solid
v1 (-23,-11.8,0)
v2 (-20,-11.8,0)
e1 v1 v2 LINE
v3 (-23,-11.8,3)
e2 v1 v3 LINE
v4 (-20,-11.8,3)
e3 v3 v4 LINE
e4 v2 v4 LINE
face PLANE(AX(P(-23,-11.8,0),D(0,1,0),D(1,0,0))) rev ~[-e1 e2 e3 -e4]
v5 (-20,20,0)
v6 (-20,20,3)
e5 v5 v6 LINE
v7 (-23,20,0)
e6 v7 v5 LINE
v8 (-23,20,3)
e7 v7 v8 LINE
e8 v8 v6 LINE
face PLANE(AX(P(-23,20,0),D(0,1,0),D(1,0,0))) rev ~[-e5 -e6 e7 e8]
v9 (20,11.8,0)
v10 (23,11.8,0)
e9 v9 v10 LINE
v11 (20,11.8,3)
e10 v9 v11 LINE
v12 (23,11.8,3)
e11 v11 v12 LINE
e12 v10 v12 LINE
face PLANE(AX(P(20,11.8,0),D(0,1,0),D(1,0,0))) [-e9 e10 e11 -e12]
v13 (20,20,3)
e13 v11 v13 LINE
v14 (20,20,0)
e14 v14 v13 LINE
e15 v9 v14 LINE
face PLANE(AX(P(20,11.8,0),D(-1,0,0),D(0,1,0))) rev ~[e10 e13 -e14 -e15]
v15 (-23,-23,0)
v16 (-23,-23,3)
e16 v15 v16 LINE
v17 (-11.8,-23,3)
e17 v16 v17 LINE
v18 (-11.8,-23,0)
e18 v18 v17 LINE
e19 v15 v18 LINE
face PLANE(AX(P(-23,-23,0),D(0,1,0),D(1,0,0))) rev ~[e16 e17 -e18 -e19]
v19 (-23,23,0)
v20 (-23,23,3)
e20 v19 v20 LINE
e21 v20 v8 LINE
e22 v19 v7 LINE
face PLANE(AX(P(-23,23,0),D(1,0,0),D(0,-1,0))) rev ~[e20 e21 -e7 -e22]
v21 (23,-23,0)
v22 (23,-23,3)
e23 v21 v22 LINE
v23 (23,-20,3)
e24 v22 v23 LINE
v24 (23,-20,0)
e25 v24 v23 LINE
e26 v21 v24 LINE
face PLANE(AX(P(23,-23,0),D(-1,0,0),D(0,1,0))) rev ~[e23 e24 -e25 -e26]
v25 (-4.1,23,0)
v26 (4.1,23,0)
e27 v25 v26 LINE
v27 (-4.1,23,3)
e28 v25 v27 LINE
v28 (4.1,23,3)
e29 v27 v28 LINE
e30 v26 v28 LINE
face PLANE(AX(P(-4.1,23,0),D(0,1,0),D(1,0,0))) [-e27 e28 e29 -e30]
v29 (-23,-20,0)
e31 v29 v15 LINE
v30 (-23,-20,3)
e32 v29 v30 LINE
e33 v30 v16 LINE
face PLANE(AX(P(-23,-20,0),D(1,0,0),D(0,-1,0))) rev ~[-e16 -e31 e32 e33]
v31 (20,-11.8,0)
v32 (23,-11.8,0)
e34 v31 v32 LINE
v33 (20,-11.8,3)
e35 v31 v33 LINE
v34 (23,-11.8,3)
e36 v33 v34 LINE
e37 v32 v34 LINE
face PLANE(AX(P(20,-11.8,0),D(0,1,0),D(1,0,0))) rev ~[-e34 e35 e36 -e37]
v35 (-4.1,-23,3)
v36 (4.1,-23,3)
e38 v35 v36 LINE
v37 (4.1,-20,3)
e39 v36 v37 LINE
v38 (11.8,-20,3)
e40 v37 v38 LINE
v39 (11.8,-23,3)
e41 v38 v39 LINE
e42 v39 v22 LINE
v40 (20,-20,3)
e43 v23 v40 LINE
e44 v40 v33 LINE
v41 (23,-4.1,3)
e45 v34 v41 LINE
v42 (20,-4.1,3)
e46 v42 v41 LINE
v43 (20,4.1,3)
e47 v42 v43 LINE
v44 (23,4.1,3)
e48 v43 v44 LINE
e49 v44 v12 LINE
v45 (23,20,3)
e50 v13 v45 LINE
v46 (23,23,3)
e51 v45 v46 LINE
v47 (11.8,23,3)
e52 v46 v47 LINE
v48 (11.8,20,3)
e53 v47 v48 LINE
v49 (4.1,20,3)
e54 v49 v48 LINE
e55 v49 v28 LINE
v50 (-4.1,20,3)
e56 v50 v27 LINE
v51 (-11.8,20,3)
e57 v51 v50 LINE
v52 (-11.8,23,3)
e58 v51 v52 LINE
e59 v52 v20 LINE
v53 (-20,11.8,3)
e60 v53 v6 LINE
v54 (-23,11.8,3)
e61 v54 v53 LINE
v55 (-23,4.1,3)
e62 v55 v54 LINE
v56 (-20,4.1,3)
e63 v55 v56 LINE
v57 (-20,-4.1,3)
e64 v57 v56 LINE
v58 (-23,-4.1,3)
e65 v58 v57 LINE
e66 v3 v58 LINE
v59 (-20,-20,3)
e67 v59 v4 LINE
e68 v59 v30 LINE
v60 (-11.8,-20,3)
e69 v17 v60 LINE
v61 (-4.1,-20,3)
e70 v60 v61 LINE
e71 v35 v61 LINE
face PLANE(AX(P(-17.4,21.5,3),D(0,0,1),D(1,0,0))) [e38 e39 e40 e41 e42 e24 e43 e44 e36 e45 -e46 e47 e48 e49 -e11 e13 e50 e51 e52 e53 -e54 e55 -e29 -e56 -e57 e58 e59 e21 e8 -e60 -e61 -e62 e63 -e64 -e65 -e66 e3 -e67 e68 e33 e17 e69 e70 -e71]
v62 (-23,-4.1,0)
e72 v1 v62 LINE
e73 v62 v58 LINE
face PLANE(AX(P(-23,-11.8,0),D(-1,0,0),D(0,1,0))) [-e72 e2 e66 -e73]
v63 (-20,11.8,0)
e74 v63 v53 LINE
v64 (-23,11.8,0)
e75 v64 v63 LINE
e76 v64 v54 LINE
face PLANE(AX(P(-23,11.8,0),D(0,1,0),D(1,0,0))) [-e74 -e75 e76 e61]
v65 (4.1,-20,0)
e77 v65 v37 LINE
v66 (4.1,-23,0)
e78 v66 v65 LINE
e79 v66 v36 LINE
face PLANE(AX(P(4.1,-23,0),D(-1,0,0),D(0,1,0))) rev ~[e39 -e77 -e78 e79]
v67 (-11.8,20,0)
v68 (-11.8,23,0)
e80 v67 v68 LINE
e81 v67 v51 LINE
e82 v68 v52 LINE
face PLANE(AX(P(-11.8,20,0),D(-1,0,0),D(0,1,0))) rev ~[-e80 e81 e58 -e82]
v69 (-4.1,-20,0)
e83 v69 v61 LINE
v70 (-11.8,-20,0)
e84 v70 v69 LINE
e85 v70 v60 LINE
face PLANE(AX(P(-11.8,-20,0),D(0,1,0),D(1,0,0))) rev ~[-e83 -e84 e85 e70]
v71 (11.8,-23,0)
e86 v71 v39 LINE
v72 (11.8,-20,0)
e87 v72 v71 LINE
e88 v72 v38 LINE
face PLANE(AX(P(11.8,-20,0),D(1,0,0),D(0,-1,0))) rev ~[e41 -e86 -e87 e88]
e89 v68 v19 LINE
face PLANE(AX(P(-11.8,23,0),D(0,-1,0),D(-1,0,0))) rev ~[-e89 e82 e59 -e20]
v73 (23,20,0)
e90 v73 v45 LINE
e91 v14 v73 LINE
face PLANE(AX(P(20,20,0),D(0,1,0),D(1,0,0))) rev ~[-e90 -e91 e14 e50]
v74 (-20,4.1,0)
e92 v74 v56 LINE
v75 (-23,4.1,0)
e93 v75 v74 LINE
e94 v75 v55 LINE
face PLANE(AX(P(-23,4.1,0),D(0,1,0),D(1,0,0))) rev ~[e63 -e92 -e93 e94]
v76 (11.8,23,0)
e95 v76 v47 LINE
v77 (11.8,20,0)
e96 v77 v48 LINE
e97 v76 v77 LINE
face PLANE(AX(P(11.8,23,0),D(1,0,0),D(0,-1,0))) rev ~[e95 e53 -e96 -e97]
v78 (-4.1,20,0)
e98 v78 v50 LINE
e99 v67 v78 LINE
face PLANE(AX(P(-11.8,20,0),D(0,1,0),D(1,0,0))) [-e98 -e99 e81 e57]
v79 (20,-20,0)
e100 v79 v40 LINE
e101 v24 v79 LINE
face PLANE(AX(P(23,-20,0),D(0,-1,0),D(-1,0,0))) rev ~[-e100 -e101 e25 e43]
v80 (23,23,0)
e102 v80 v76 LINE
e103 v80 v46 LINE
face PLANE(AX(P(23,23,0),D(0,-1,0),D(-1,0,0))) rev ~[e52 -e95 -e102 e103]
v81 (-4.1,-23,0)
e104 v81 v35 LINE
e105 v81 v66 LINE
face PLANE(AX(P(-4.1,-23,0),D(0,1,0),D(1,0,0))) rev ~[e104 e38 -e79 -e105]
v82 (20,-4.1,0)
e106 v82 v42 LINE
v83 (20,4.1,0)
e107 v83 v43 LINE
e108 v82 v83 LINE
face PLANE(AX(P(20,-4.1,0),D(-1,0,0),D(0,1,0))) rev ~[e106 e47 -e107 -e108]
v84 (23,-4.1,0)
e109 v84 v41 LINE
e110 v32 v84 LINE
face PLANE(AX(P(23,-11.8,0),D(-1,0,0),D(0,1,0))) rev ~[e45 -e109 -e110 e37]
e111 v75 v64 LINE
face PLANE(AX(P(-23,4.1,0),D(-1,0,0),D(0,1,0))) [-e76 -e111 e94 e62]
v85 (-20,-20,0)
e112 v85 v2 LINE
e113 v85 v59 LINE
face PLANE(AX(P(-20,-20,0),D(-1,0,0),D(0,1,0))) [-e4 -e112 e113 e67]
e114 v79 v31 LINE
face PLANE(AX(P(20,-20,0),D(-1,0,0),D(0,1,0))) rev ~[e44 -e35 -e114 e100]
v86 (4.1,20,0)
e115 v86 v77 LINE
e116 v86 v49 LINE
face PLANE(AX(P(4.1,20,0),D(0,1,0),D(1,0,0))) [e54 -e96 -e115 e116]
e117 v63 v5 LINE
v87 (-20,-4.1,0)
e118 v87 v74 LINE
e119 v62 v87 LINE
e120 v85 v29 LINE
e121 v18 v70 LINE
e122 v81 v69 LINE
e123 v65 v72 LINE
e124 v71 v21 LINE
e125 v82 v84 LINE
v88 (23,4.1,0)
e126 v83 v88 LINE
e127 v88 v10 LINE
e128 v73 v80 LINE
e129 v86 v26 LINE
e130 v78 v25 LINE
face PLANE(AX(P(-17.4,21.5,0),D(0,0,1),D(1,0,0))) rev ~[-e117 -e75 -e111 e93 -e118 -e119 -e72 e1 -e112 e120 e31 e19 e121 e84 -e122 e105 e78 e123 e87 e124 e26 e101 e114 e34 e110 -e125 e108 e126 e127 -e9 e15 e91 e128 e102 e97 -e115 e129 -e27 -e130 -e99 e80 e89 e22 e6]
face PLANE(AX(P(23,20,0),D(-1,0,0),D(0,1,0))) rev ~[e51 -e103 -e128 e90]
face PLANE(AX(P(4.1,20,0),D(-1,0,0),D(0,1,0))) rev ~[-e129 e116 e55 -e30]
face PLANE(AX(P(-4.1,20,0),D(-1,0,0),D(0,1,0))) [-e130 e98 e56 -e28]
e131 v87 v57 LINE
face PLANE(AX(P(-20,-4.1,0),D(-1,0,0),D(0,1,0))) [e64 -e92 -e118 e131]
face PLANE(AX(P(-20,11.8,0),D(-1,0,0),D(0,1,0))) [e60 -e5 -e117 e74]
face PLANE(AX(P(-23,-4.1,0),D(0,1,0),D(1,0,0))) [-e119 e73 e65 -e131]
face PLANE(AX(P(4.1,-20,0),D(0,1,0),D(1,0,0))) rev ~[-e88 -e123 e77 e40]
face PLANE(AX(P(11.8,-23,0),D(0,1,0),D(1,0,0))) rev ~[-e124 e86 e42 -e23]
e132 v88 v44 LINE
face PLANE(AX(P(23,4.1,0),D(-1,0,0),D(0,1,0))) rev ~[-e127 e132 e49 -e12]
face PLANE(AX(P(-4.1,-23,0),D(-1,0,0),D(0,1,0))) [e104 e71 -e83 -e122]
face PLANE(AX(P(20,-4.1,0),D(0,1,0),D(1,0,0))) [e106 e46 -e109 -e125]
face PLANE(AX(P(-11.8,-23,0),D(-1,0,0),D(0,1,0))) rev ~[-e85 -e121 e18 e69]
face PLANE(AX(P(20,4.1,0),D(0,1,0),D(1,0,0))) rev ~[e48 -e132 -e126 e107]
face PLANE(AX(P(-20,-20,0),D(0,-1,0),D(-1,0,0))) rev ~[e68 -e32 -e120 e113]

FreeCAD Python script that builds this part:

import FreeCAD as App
import Part
import Sketcher
Q = App.Units.Quantity


def add_polygon(sketch, points):
    """Adds a closed chain of lines whose ends are joined by coincident constraints."""
    first, n = sketch.GeometryCount, len(points)
    for a, b in zip(points, points[1:] + points[:1]):
        sketch.addGeometry(Part.LineSegment(App.Vector(*a, 0), App.Vector(*b, 0)), False)
    for i in range(n):
        sketch.addConstraint(Sketcher.Constraint("Coincident", first + i, 2, first + (i + 1) % n, 1))

doc = App.newDocument("Part")
body = doc.addObject("PartDesign::Body", "Body")

# Sketch on XY plane
sketch1 = body.newObject("Sketcher::SketchObject", "Sketch")
sketch1.AttachmentSupport = (doc.getObject("XY_Plane"), [""])
sketch1.MapMode = "FlatFace"
add_polygon(sketch1, [(-11.8, 20), (-11.8, 23), (-23, 23), (-23, 20), (-20, 20), (-20, 11.8), (-23, 11.8), (-23, 4.1), (-20, 4.1), (-20, -4.1), (-23, -4.1), (-23, -11.8), (-20, -11.8), (-20, -20), (-23, -20), (-23, -23), (-11.8, -23), (-11.8, -20), (-4.1, -20), (-4.1, -23), (4.1, -23), (4.1, -20), (11.8, -20), (11.8, -23), (23, -23), (23, -20), (20, -20), (20, -11.8), (23, -11.8), (23, -4.1), (20, -4.1), (20, 4.1), (23, 4.1), (23, 11.8), (20, 11.8), (20, 20), (23, 20), (23, 23), (11.8, 23), (11.8, 20), (4.1, 20), (4.1, 23), (-4.1, 23), (-4.1, 20)])  # lines 0-43
sketch1.addConstraint([
    Sketcher.Constraint("Vertical", 0),
    Sketcher.Constraint("Horizontal", 1),
    Sketcher.Constraint("Vertical", 2),
    Sketcher.Constraint("Horizontal", 3),
    Sketcher.Constraint("Vertical", 4),
    Sketcher.Constraint("Horizontal", 5),
    Sketcher.Constraint("Vertical", 6),
    Sketcher.Constraint("Horizontal", 7),
    Sketcher.Constraint("Vertical", 8),
    Sketcher.Constraint("Horizontal", 9),
    Sketcher.Constraint("Vertical", 10),
    Sketcher.Constraint("Horizontal", 11),
    Sketcher.Constraint("Vertical", 12),
    Sketcher.Constraint("Horizontal", 13),
    Sketcher.Constraint("Vertical", 14),
    Sketcher.Constraint("Horizontal", 15),
    Sketcher.Constraint("Vertical", 16),
    Sketcher.Constraint("Horizontal", 17),
    Sketcher.Constraint("Vertical", 18),
    Sketcher.Constraint("Horizontal", 19),
    Sketcher.Constraint("Vertical", 20),
    Sketcher.Constraint("Horizontal", 21),
    Sketcher.Constraint("Vertical", 22),
    Sketcher.Constraint("Horizontal", 23),
    Sketcher.Constraint("Vertical", 24),
    Sketcher.Constraint("Horizontal", 25),
    Sketcher.Constraint("Vertical", 26),
    Sketcher.Constraint("Horizontal", 27),
    Sketcher.Constraint("Vertical", 28),
    Sketcher.Constraint("Horizontal", 29),
    Sketcher.Constraint("Vertical", 30),
    Sketcher.Constraint("Horizontal", 31),
    Sketcher.Constraint("Vertical", 32),
    Sketcher.Constraint("Horizontal", 33),
    Sketcher.Constraint("Vertical", 34),
    Sketcher.Constraint("Horizontal", 35),
    Sketcher.Constraint("Vertical", 36),
    Sketcher.Constraint("Horizontal", 37),
    Sketcher.Constraint("Vertical", 38),
    Sketcher.Constraint("Horizontal", 39),
    Sketcher.Constraint("Vertical", 40),
    Sketcher.Constraint("Horizontal", 41),
    Sketcher.Constraint("Vertical", 42),
    Sketcher.Constraint("Horizontal", 43),
    Sketcher.Constraint("Symmetric", 0, 2, 22, 2, -1, 1),
    Sketcher.Constraint("Symmetric", 2, 2, 24, 2, -1, 1),
    Sketcher.Constraint("Symmetric", 4, 2, 26, 2, -1, 1),
    Sketcher.Constraint("Symmetric", 6, 2, 28, 2, -1, 1),
    Sketcher.Constraint("Symmetric", 8, 2, 30, 2, -1, 1),
    Sketcher.Constraint("Symmetric", 10, 2, 32, 2, -1, 1),
    Sketcher.Constraint("Symmetric", 12, 2, 34, 2, -1, 1),
    Sketcher.Constraint("Symmetric", 14, 2, 36, 2, -1, 1),
    Sketcher.Constraint("Symmetric", 16, 2, 38, 2, -1, 1),
    Sketcher.Constraint("Symmetric", 18, 2, 40, 2, -1, 1),
    Sketcher.Constraint("Symmetric", 20, 2, 42, 2, -1, 1),
    Sketcher.Constraint("Symmetric", 17, 2, 20, 2, -2),
    Sketcher.Constraint("Symmetric", 15, 2, 22, 2, -2),
    Sketcher.Constraint("Symmetric", 13, 2, 24, 2, -2),
    Sketcher.Constraint("Symmetric", 11, 2, 26, 2, -2),
    Sketcher.Constraint("Symmetric", 9, 2, 28, 2, -2),
    Sketcher.Constraint("Horizontal", 13, 2, 16, 2),
    Sketcher.Constraint("Horizontal", 15, 2, 18, 2),
    Sketcher.Constraint("Vertical", 2, 2, 5, 2),
    Sketcher.Constraint("Vertical", 4, 2, 7, 2),
    Sketcher.Constraint("Equal", 35, 0),
    Sketcher.Constraint("Equal", 41, 4),
    Sketcher.Constraint("Equal", 43, 6),
    Sketcher.Constraint("Equal", 4, 8),
    Sketcher.Constraint("DistanceX", 3, 1, 3, 2, Q("3 mm")),
    Sketcher.Constraint("DistanceX", 1, 2, 1, 1, Q("11.2 mm")),
    Sketcher.Constraint("DistanceX", 17, 1, 17, 2, Q("7.7 mm")),
    Sketcher.Constraint("DistanceX", 19, 1, 19, 2, Q("8.2 mm")),
])
pad1 = body.newObject("PartDesign::Pad", "Pad")
pad1.Profile = sketch1
pad1.Length = 3

doc.recompute()
